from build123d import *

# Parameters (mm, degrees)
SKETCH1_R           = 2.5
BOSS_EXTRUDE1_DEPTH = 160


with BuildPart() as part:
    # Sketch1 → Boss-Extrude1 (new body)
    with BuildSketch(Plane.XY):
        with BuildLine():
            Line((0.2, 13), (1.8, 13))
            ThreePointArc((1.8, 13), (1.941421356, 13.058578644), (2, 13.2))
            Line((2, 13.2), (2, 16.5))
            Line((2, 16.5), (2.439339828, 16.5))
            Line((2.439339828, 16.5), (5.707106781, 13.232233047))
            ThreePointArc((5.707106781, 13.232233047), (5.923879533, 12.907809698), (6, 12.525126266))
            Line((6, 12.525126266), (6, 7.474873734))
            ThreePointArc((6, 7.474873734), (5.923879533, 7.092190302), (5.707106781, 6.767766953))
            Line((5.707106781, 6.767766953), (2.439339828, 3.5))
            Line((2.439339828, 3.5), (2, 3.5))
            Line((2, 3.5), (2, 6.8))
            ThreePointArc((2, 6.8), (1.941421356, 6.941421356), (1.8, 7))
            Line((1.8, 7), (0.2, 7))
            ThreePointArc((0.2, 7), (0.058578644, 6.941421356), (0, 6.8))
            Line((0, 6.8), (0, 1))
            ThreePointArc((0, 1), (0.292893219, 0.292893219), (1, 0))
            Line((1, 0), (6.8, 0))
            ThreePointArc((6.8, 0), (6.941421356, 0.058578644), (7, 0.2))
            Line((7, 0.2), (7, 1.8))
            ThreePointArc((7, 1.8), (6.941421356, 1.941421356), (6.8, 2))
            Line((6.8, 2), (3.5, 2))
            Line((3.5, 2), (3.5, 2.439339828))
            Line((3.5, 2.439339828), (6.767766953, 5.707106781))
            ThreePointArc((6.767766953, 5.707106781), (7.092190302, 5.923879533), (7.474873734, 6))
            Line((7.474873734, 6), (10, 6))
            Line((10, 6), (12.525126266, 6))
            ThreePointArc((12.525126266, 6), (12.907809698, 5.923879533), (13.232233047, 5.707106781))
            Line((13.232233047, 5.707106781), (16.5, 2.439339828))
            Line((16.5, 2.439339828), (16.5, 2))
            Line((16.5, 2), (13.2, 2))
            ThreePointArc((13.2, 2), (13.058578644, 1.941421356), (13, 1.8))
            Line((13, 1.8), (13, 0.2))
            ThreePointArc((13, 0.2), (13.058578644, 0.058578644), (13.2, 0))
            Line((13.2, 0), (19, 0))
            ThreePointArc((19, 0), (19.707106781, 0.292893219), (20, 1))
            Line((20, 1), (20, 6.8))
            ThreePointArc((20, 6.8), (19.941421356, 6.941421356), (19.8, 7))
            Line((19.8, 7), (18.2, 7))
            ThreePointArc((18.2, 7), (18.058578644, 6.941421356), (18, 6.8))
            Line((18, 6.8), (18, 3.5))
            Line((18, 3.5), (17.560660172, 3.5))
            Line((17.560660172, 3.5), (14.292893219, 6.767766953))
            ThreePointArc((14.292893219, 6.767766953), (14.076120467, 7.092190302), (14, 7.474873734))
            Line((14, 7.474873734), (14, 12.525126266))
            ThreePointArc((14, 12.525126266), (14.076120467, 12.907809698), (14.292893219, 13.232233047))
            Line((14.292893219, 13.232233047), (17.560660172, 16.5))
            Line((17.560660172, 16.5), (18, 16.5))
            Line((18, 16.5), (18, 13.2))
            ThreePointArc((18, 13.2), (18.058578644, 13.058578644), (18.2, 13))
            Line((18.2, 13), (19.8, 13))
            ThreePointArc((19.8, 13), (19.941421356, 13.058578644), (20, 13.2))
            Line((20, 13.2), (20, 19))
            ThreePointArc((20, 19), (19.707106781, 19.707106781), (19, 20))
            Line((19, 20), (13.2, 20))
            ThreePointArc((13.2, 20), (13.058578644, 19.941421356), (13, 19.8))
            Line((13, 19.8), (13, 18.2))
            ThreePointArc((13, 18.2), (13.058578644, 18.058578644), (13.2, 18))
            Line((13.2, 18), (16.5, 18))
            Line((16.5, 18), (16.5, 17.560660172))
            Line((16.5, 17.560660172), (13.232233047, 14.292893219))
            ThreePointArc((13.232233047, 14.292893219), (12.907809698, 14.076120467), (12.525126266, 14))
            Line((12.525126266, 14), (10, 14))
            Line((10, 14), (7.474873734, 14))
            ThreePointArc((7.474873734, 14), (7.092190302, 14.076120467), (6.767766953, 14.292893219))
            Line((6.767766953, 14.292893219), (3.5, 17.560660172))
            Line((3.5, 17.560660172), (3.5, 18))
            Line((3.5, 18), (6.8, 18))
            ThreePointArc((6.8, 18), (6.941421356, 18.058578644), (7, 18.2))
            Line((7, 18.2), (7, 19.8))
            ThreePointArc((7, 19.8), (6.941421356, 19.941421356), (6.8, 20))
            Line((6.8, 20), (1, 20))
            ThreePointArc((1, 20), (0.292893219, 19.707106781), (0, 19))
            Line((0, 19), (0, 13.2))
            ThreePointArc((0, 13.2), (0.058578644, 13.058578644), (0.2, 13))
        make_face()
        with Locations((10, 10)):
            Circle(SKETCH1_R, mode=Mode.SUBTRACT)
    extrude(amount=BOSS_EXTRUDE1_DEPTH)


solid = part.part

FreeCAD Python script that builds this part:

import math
import FreeCAD as App
import Part
import Sketcher

doc = App.newDocument("Part")
params = doc.addObject("Spreadsheet::Sheet", "Params")
for row, (alias, value) in enumerate([
    ("sketch1_diameter", "5 mm"),
    ("sketch1_radius", "1 mm"),
    ("sketch1_radius2", "0.2 mm"),
    ("sketch1_width", "1.6 mm"),
    ("sketch1_width2", "5.8 mm"),
    ("pad1_length", "160 mm"),
], start=1):
    params.set(f"A{row}", alias)
    params.set(f"B{row}", "=" + value)
    params.setAlias(f"B{row}", alias)

body = doc.addObject("PartDesign::Body", "Body")

# Sketch on XY plane
sketch1 = body.newObject("Sketcher::SketchObject", "Sketch")
sketch1.AttachmentSupport = (doc.getObject("XY_Plane"), [""])
sketch1.MapMode = "FlatFace"
sketch1.addGeometry(Part.LineSegment(App.Vector(0.2, 13, 0), App.Vector(1.8, 13, 0)), False)
sketch1.addGeometry(Part.ArcOfCircle(Part.Circle(App.Vector(1.8, 13.2, 0), App.Vector(0, 0, 1), 0.2), math.radians(-90), math.radians(0)), False)
sketch1.addGeometry(Part.LineSegment(App.Vector(2, 13.2, 0), App.Vector(2, 16.5, 0)), False)
sketch1.addGeometry(Part.LineSegment(App.Vector(2, 16.5, 0), App.Vector(2.44, 16.5, 0)), False)
sketch1.addGeometry(Part.LineSegment(App.Vector(2.44, 16.5, 0), App.Vector(5.71, 13.23, 0)), False)
sketch1.addGeometry(Part.ArcOfCircle(Part.Circle(App.Vector(5, 12.53, 0), App.Vector(0, 0, 1), 1), math.radians(0), math.radians(45)), False)
sketch1.addGeometry(Part.LineSegment(App.Vector(6, 12.53, 0), App.Vector(6, 7.47, 0)), False)
sketch1.addGeometry(Part.ArcOfCircle(Part.Circle(App.Vector(5, 7.47, 0), App.Vector(0, 0, 1), 1), math.radians(-45), math.radians(0)), False)
sketch1.addGeometry(Part.LineSegment(App.Vector(5.71, 6.77, 0), App.Vector(2.44, 3.5, 0)), False)
sketch1.addGeometry(Part.LineSegment(App.Vector(2.44, 3.5, 0), App.Vector(2, 3.5, 0)), False)
sketch1.addGeometry(Part.LineSegment(App.Vector(2, 3.5, 0), App.Vector(2, 6.8, 0)), False)
sketch1.addGeometry(Part.ArcOfCircle(Part.Circle(App.Vector(1.8, 6.8, 0), App.Vector(0, 0, 1), 0.2), math.radians(0), math.radians(90)), False)
sketch1.addGeometry(Part.LineSegment(App.Vector(1.8, 7, 0), App.Vector(0.2, 7, 0)), False)
sketch1.addGeometry(Part.ArcOfCircle(Part.Circle(App.Vector(0.2, 6.8, 0), App.Vector(0, 0, 1), 0.2), math.radians(90), math.radians(180)), False)
sketch1.addGeometry(Part.LineSegment(App.Vector(0, 6.8, 0), App.Vector(0, 1, 0)), False)
sketch1.addGeometry(Part.ArcOfCircle(Part.Circle(App.Vector(1, 1, 0), App.Vector(0, 0, 1), 1), math.radians(-180), math.radians(-90)), False)
sketch1.addGeometry(Part.LineSegment(App.Vector(1, 0, 0), App.Vector(6.8, 0, 0)), False)
sketch1.addGeometry(Part.ArcOfCircle(Part.Circle(App.Vector(6.8, 0.2, 0), App.Vector(0, 0, 1), 0.2), math.radians(-90), math.radians(0)), False)
sketch1.addGeometry(Part.LineSegment(App.Vector(7, 0.2, 0), App.Vector(7, 1.8, 0)), False)
sketch1.addGeometry(Part.ArcOfCircle(Part.Circle(App.Vector(6.8, 1.8, 0), App.Vector(0, 0, 1), 0.2), math.radians(0), math.radians(90)), False)
sketch1.addGeometry(Part.LineSegment(App.Vector(6.8, 2, 0), App.Vector(3.5, 2, 0)), False)
sketch1.addGeometry(Part.LineSegment(App.Vector(3.5, 2, 0), App.Vector(3.5, 2.44, 0)), False)
sketch1.addGeometry(Part.LineSegment(App.Vector(3.5, 2.44, 0), App.Vector(6.77, 5.71, 0)), False)
sketch1.addGeometry(Part.ArcOfCircle(Part.Circle(App.Vector(7.47, 5, 0), App.Vector(0, 0, 1), 1), math.radians(90), math.radians(135)), False)
sketch1.addGeometry(Part.LineSegment(App.Vector(7.47, 6, 0), App.Vector(12.53, 6, 0)), False)
sketch1.addGeometry(Part.ArcOfCircle(Part.Circle(App.Vector(12.53, 5, 0), App.Vector(0, 0, 1), 1), math.radians(45), math.radians(90)), False)
sketch1.addGeometry(Part.LineSegment(App.Vector(13.23, 5.71, 0), App.Vector(16.5, 2.44, 0)), False)
sketch1.addGeometry(Part.LineSegment(App.Vector(16.5, 2.44, 0), App.Vector(16.5, 2, 0)), False)
sketch1.addGeometry(Part.LineSegment(App.Vector(16.5, 2, 0), App.Vector(13.2, 2, 0)), False)
sketch1.addGeometry(Part.ArcOfCircle(Part.Circle(App.Vector(13.2, 1.8, 0), App.Vector(0, 0, 1), 0.2), math.radians(90), math.radians(180)), False)
sketch1.addGeometry(Part.LineSegment(App.Vector(13, 1.8, 0), App.Vector(13, 0.2, 0)), False)
sketch1.addGeometry(Part.ArcOfCircle(Part.Circle(App.Vector(13.2, 0.2, 0), App.Vector(0, 0, 1), 0.2), math.radians(-180), math.radians(-90)), False)
sketch1.addGeometry(Part.LineSegment(App.Vector(13.2, 0, 0), App.Vector(19, 0, 0)), False)
sketch1.addGeometry(Part.ArcOfCircle(Part.Circle(App.Vector(19, 1, 0), App.Vector(0, 0, 1), 1), math.radians(-90), math.radians(0)), False)
sketch1.addGeometry(Part.LineSegment(App.Vector(20, 1, 0), App.Vector(20, 6.8, 0)), False)
sketch1.addGeometry(Part.ArcOfCircle(Part.Circle(App.Vector(19.8, 6.8, 0), App.Vector(0, 0, 1), 0.2), math.radians(0), math.radians(90)), False)
sketch1.addGeometry(Part.LineSegment(App.Vector(19.8, 7, 0), App.Vector(18.2, 7, 0)), False)
sketch1.addGeometry(Part.ArcOfCircle(Part.Circle(App.Vector(18.2, 6.8, 0), App.Vector(0, 0, 1), 0.2), math.radians(90), math.radians(180)), False)
sketch1.addGeometry(Part.LineSegment(App.Vector(18, 6.8, 0), App.Vector(18, 3.5, 0)), False)
sketch1.addGeometry(Part.LineSegment(App.Vector(18, 3.5, 0), App.Vector(17.56, 3.5, 0)), False)
sketch1.addGeometry(Part.LineSegment(App.Vector(17.56, 3.5, 0), App.Vector(14.29, 6.77, 0)), False)
sketch1.addGeometry(Part.ArcOfCircle(Part.Circle(App.Vector(15, 7.47, 0), App.Vector(0, 0, 1), 1), math.radians(180), math.radians(225)), False)
sketch1.addGeometry(Part.LineSegment(App.Vector(14, 7.47, 0), App.Vector(14, 12.53, 0)), False)
sketch1.addGeometry(Part.ArcOfCircle(Part.Circle(App.Vector(15, 12.53, 0), App.Vector(0, 0, 1), 1), math.radians(135), math.radians(180)), False)
sketch1.addGeometry(Part.LineSegment(App.Vector(14.29, 13.23, 0), App.Vector(17.56, 16.5, 0)), False)
sketch1.addGeometry(Part.LineSegment(App.Vector(17.56, 16.5, 0), App.Vector(18, 16.5, 0)), False)
sketch1.addGeometry(Part.LineSegment(App.Vector(18, 16.5, 0), App.Vector(18, 13.2, 0)), False)
sketch1.addGeometry(Part.ArcOfCircle(Part.Circle(App.Vector(18.2, 13.2, 0), App.Vector(0, 0, 1), 0.2), math.radians(-180), math.radians(-90)), False)
sketch1.addGeometry(Part.LineSegment(App.Vector(18.2, 13, 0), App.Vector(19.8, 13, 0)), False)
sketch1.addGeometry(Part.ArcOfCircle(Part.Circle(App.Vector(19.8, 13.2, 0), App.Vector(0, 0, 1), 0.2), math.radians(-90), math.radians(0)), False)
sketch1.addGeometry(Part.LineSegment(App.Vector(20, 13.2, 0), App.Vector(20, 19, 0)), False)
sketch1.addGeometry(Part.ArcOfCircle(Part.Circle(App.Vector(19, 19, 0), App.Vector(0, 0, 1), 1), math.radians(0), math.radians(90)), False)
sketch1.addGeometry(Part.LineSegment(App.Vector(19, 20, 0), App.Vector(13.2, 20, 0)), False)
sketch1.addGeometry(Part.ArcOfCircle(Part.Circle(App.Vector(13.2, 19.8, 0), App.Vector(0, 0, 1), 0.2), math.radians(90), math.radians(180)), False)
sketch1.addGeometry(Part.LineSegment(App.Vector(13, 19.8, 0), App.Vector(13, 18.2, 0)), False)
sketch1.addGeometry(Part.ArcOfCircle(Part.Circle(App.Vector(13.2, 18.2, 0), App.Vector(0, 0, 1), 0.2), math.radians(-180), math.radians(-90)), False)
sketch1.addGeometry(Part.LineSegment(App.Vector(13.2, 18, 0), App.Vector(16.5, 18, 0)), False)
sketch1.addGeometry(Part.LineSegment(App.Vector(16.5, 18, 0), App.Vector(16.5, 17.56, 0)), False)
sketch1.addGeometry(Part.LineSegment(App.Vector(16.5, 17.56, 0), App.Vector(13.23, 14.29, 0)), False)
sketch1.addGeometry(Part.ArcOfCircle(Part.Circle(App.Vector(12.53, 15, 0), App.Vector(0, 0, 1), 1), math.radians(-90), math.radians(-45)), False)
sketch1.addGeometry(Part.LineSegment(App.Vector(12.53, 14, 0), App.Vector(7.47, 14, 0)), False)
sketch1.addGeometry(Part.ArcOfCircle(Part.Circle(App.Vector(7.47, 15, 0), App.Vector(0, 0, 1), 1), math.radians(-135), math.radians(-90)), False)
sketch1.addGeometry(Part.LineSegment(App.Vector(6.77, 14.29, 0), App.Vector(3.5, 17.56, 0)), False)
sketch1.addGeometry(Part.LineSegment(App.Vector(3.5, 17.56, 0), App.Vector(3.5, 18, 0)), False)
sketch1.addGeometry(Part.LineSegment(App.Vector(3.5, 18, 0), App.Vector(6.8, 18, 0)), False)
sketch1.addGeometry(Part.ArcOfCircle(Part.Circle(App.Vector(6.8, 18.2, 0), App.Vector(0, 0, 1), 0.2), math.radians(-90), math.radians(0)), False)
sketch1.addGeometry(Part.LineSegment(App.Vector(7, 18.2, 0), App.Vector(7, 19.8, 0)), False)
sketch1.addGeometry(Part.ArcOfCircle(Part.Circle(App.Vector(6.8, 19.8, 0), App.Vector(0, 0, 1), 0.2), math.radians(0), math.radians(90)), False)
sketch1.addGeometry(Part.LineSegment(App.Vector(6.8, 20, 0), App.Vector(1, 20, 0)), False)
sketch1.addGeometry(Part.ArcOfCircle(Part.Circle(App.Vector(1, 19, 0), App.Vector(0, 0, 1), 1), math.radians(90), math.radians(180)), False)
sketch1.addGeometry(Part.LineSegment(App.Vector(0, 19, 0), App.Vector(0, 13.2, 0)), False)
sketch1.addGeometry(Part.ArcOfCircle(Part.Circle(App.Vector(0.2, 13.2, 0), App.Vector(0, 0, 1), 0.2), math.radians(-180), math.radians(-90)), False)
sketch1.addGeometry(Part.Circle(App.Vector(10, 10, 0), App.Vector(0, 0, 1), 2.5), False)
sketch1.addConstraint(Sketcher.Constraint("Tangent", 0, 2, 1, 1))
sketch1.addConstraint(Sketcher.Constraint("Tangent", 1, 2, 2, 1))
sketch1.addConstraint(Sketcher.Constraint("Coincident", 2, 2, 3, 1))
sketch1.addConstraint(Sketcher.Constraint("Coincident", 3, 2, 4, 1))
sketch1.addConstraint(Sketcher.Constraint("Tangent", 4, 2, 5, 2))
sketch1.addConstraint(Sketcher.Constraint("Tangent", 5, 1, 6, 1))
sketch1.addConstraint(Sketcher.Constraint("Tangent", 6, 2, 7, 2))
sketch1.addConstraint(Sketcher.Constraint("Tangent", 7, 1, 8, 1))
sketch1.addConstraint(Sketcher.Constraint("Coincident", 8, 2, 9, 1))
sketch1.addConstraint(Sketcher.Constraint("Coincident", 9, 2, 10, 1))
sketch1.addConstraint(Sketcher.Constraint("Tangent", 10, 2, 11, 1))
sketch1.addConstraint(Sketcher.Constraint("Tangent", 11, 2, 12, 1))
sketch1.addConstraint(Sketcher.Constraint("Tangent", 12, 2, 13, 1))
sketch1.addConstraint(Sketcher.Constraint("Tangent", 13, 2, 14, 1))
sketch1.addConstraint(Sketcher.Constraint("Tangent", 14, 2, 15, 1))
sketch1.addConstraint(Sketcher.Constraint("Tangent", 15, 2, 16, 1))
sketch1.addConstraint(Sketcher.Constraint("Tangent", 16, 2, 17, 1))
sketch1.addConstraint(Sketcher.Constraint("Tangent", 17, 2, 18, 1))
sketch1.addConstraint(Sketcher.Constraint("Tangent", 18, 2, 19, 1))
sketch1.addConstraint(Sketcher.Constraint("Tangent", 19, 2, 20, 1))
sketch1.addConstraint(Sketcher.Constraint("Coincident", 20, 2, 21, 1))
sketch1.addConstraint(Sketcher.Constraint("Coincident", 21, 2, 22, 1))
sketch1.addConstraint(Sketcher.Constraint("Tangent", 22, 2, 23, 2))
sketch1.addConstraint(Sketcher.Constraint("Tangent", 23, 1, 24, 1))
sketch1.addConstraint(Sketcher.Constraint("Tangent", 24, 2, 25, 2))
sketch1.addConstraint(Sketcher.Constraint("Tangent", 25, 1, 26, 1))
sketch1.addConstraint(Sketcher.Constraint("Coincident", 26, 2, 27, 1))
sketch1.addConstraint(Sketcher.Constraint("Coincident", 27, 2, 28, 1))
sketch1.addConstraint(Sketcher.Constraint("Tangent", 28, 2, 29, 1))
sketch1.addConstraint(Sketcher.Constraint("Tangent", 29, 2, 30, 1))
sketch1.addConstraint(Sketcher.Constraint("Tangent", 30, 2, 31, 1))
sketch1.addConstraint(Sketcher.Constraint("Tangent", 31, 2, 32, 1))
sketch1.addConstraint(Sketcher.Constraint("Tangent", 32, 2, 33, 1))
sketch1.addConstraint(Sketcher.Constraint("Tangent", 33, 2, 34, 1))
sketch1.addConstraint(Sketcher.Constraint("Tangent", 34, 2, 35, 1))
sketch1.addConstraint(Sketcher.Constraint("Tangent", 35, 2, 36, 1))
sketch1.addConstraint(Sketcher.Constraint("Tangent", 36, 2, 37, 1))
sketch1.addConstraint(Sketcher.Constraint("Tangent", 37, 2, 38, 1))
sketch1.addConstraint(Sketcher.Constraint("Coincident", 38, 2, 39, 1))
sketch1.addConstraint(Sketcher.Constraint("Coincident", 39, 2, 40, 1))
sketch1.addConstraint(Sketcher.Constraint("Tangent", 40, 2, 41, 2))
sketch1.addConstraint(Sketcher.Constraint("Tangent", 41, 1, 42, 1))
sketch1.addConstraint(Sketcher.Constraint("Tangent", 42, 2, 43, 2))
sketch1.addConstraint(Sketcher.Constraint("Tangent", 43, 1, 44, 1))
sketch1.addConstraint(Sketcher.Constraint("Coincident", 44, 2, 45, 1))
sketch1.addConstraint(Sketcher.Constraint("Coincident", 45, 2, 46, 1))
sketch1.addConstraint(Sketcher.Constraint("Tangent", 46, 2, 47, 1))
sketch1.addConstraint(Sketcher.Constraint("Tangent", 47, 2, 48, 1))
sketch1.addConstraint(Sketcher.Constraint("Tangent", 48, 2, 49, 1))
sketch1.addConstraint(Sketcher.Constraint("Tangent", 49, 2, 50, 1))
sketch1.addConstraint(Sketcher.Constraint("Tangent", 50, 2, 51, 1))
sketch1.addConstraint(Sketcher.Constraint("Tangent", 51, 2, 52, 1))
sketch1.addConstraint(Sketcher.Constraint("Tangent", 52, 2, 53, 1))
sketch1.addConstraint(Sketcher.Constraint("Tangent", 53, 2, 54, 1))
sketch1.addConstraint(Sketcher.Constraint("Tangent", 54, 2, 55, 1))
sketch1.addConstraint(Sketcher.Constraint("Tangent", 55, 2, 56, 1))
sketch1.addConstraint(Sketcher.Constraint("Coincident", 56, 2, 57, 1))
sketch1.addConstraint(Sketcher.Constraint("Coincident", 57, 2, 58, 1))
sketch1.addConstraint(Sketcher.Constraint("Tangent", 58, 2, 59, 2))
sketch1.addConstraint(Sketcher.Constraint("Tangent", 59, 1, 60, 1))
sketch1.addConstraint(Sketcher.Constraint("Tangent", 60, 2, 61, 2))
sketch1.addConstraint(Sketcher.Constraint("Tangent", 61, 1, 62, 1))
sketch1.addConstraint(Sketcher.Constraint("Coincident", 62, 2, 63, 1))
sketch1.addConstraint(Sketcher.Constraint("Coincident", 63, 2, 64, 1))
sketch1.addConstraint(Sketcher.Constraint("Tangent", 64, 2, 65, 1))
sketch1.addConstraint(Sketcher.Constraint("Tangent", 65, 2, 66, 1))
sketch1.addConstraint(Sketcher.Constraint("Tangent", 66, 2, 67, 1))
sketch1.addConstraint(Sketcher.Constraint("Tangent", 67, 2, 68, 1))
sketch1.addConstraint(Sketcher.Constraint("Tangent", 68, 2, 69, 1))
sketch1.addConstraint(Sketcher.Constraint("Tangent", 69, 2, 70, 1))
sketch1.addConstraint(Sketcher.Constraint("Tangent", 70, 2, 71, 1))
sketch1.addConstraint(Sketcher.Constraint("Tangent", 71, 2, 0, 1))
sketch1.addConstraint(Sketcher.Constraint("Horizontal", 0))
sketch1.addConstraint(Sketcher.Constraint("Vertical", 2))
sketch1.addConstraint(Sketcher.Constraint("Horizontal", 3))
sketch1.addConstraint(Sketcher.Constraint("Vertical", 6))
sketch1.addConstraint(Sketcher.Constraint("Horizontal", 9))
sketch1.addConstraint(Sketcher.Constraint("Vertical", 10))
sketch1.addConstraint(Sketcher.Constraint("Horizontal", 12))
sketch1.addConstraint(Sketcher.Constraint("Vertical", 14))
sketch1.addConstraint(Sketcher.Constraint("Horizontal", 16))
sketch1.addConstraint(Sketcher.Constraint("Vertical", 18))
sketch1.addConstraint(Sketcher.Constraint("Horizontal", 20))
sketch1.addConstraint(Sketcher.Constraint("Vertical", 21))
sketch1.addConstraint(Sketcher.Constraint("Horizontal", 24))
sketch1.addConstraint(Sketcher.Constraint("Vertical", 27))
sketch1.addConstraint(Sketcher.Constraint("Horizontal", 28))
sketch1.addConstraint(Sketcher.Constraint("Vertical", 30))
sketch1.addConstraint(Sketcher.Constraint("Horizontal", 32))
sketch1.addConstraint(Sketcher.Constraint("Vertical", 34))
sketch1.addConstraint(Sketcher.Constraint("Horizontal", 36))
sketch1.addConstraint(Sketcher.Constraint("Vertical", 38))
sketch1.addConstraint(Sketcher.Constraint("Horizontal", 39))
sketch1.addConstraint(Sketcher.Constraint("Vertical", 42))
sketch1.addConstraint(Sketcher.Constraint("Horizontal", 45))
sketch1.addConstraint(Sketcher.Constraint("Vertical", 46))
sketch1.addConstraint(Sketcher.Constraint("Horizontal", 48))
sketch1.addConstraint(Sketcher.Constraint("Vertical", 50))
sketch1.addConstraint(Sketcher.Constraint("Horizontal", 52))
sketch1.addConstraint(Sketcher.Constraint("Vertical", 54))
sketch1.addConstraint(Sketcher.Constraint("Horizontal", 56))
sketch1.addConstraint(Sketcher.Constraint("Vertical", 57))
sketch1.addConstraint(Sketcher.Constraint("Horizontal", 60))
sketch1.addConstraint(Sketcher.Constraint("Vertical", 63))
sketch1.addConstraint(Sketcher.Constraint("Horizontal", 64))
sketch1.addConstraint(Sketcher.Constraint("Vertical", 66))
sketch1.addConstraint(Sketcher.Constraint("Horizontal", 68))
sketch1.addConstraint(Sketcher.Constraint("Vertical", 70))
sketch1.addConstraint(Sketcher.Constraint("Equal", 5, 7))
sketch1.addConstraint(Sketcher.Constraint("Equal", 1, 11))
sketch1.addConstraint(Sketcher.Constraint("Equal", 11, 13))
sketch1.addConstraint(Sketcher.Constraint("Equal", 7, 15))
sketch1.addConstraint(Sketcher.Constraint("Equal", 13, 17))
sketch1.addConstraint(Sketcher.Constraint("Equal", 17, 19))
sketch1.addConstraint(Sketcher.Constraint("Equal", 15, 23))
sketch1.addConstraint(Sketcher.Constraint("Equal", 23, 25))
sketch1.addConstraint(Sketcher.Constraint("Equal", 19, 29))
sketch1.addConstraint(Sketcher.Constraint("Equal", 29, 31))
sketch1.addConstraint(Sketcher.Constraint("Equal", 25, 33))
sketch1.addConstraint(Sketcher.Constraint("Equal", 31, 35))
sketch1.addConstraint(Sketcher.Constraint("Equal", 35, 37))
sketch1.addConstraint(Sketcher.Constraint("Equal", 33, 41))
sketch1.addConstraint(Sketcher.Constraint("Equal", 41, 43))
sketch1.addConstraint(Sketcher.Constraint("Equal", 37, 47))
sketch1.addConstraint(Sketcher.Constraint("Equal", 47, 49))
sketch1.addConstraint(Sketcher.Constraint("Equal", 43, 51))
sketch1.addConstraint(Sketcher.Constraint("Equal", 49, 53))
sketch1.addConstraint(Sketcher.Constraint("Equal", 53, 55))
sketch1.addConstraint(Sketcher.Constraint("Equal", 51, 59))
sketch1.addConstraint(Sketcher.Constraint("Equal", 59, 61))
sketch1.addConstraint(Sketcher.Constraint("Equal", 55, 65))
sketch1.addConstraint(Sketcher.Constraint("Equal", 65, 67))
sketch1.addConstraint(Sketcher.Constraint("Equal", 61, 69))
sketch1.addConstraint(Sketcher.Constraint("Equal", 67, 71))
sketch1.addConstraint(Sketcher.Constraint("PointOnObject", 13, 2, -2))
sketch1.addConstraint(Sketcher.Constraint("PointOnObject", 15, 2, -1))
sketch1.addConstraint(Sketcher.Constraint("PointOnObject", 31, 2, -1))
sketch1.addConstraint(Sketcher.Constraint("PointOnObject", 69, 2, -2))
sketch1.addConstraint(Sketcher.Constraint("Perpendicular", 4, 8))
sketch1.addConstraint(Sketcher.Constraint("Parallel", 8, 22))
sketch1.addConstraint(Sketcher.Constraint("Perpendicular", 22, 26))
sketch1.addConstraint(Sketcher.Constraint("Parallel", 26, 40))
sketch1.addConstraint(Sketcher.Constraint("Perpendicular", 40, 44))
sketch1.addConstraint(Sketcher.Constraint("Parallel", 44, 58))
sketch1.addConstraint(Sketcher.Constraint("Perpendicular", 58, 62))
sketch1.addConstraint(Sketcher.Constraint("Horizontal", 19, 3, 29, 3))
sketch1.addConstraint(Sketcher.Constraint("Horizontal", 13, 3, 35, 3))
sketch1.addConstraint(Sketcher.Constraint("Horizontal", 7, 3, 41, 3))
sketch1.addConstraint(Sketcher.Constraint("Horizontal", 5, 3, 43, 3))
sketch1.addConstraint(Sketcher.Constraint("Horizontal", 1, 3, 47, 3))
sketch1.addConstraint(Sketcher.Constraint("Horizontal", 55, 3, 65, 3))
sketch1.addConstraint(Sketcher.Constraint("Horizontal", 53, 3, 67, 3))
sketch1.addConstraint(Sketcher.Constraint("Horizontal", 22, 2, 25, 1))
sketch1.addConstraint(Sketcher.Constraint("Horizontal", 21, 2, 26, 2))
sketch1.addConstraint(Sketcher.Constraint("Horizontal", 9, 2, 38, 2))
sketch1.addConstraint(Sketcher.Constraint("Horizontal", 3, 2, 44, 2))
sketch1.addConstraint(Sketcher.Constraint("Horizontal", 57, 2, 62, 2))
sketch1.addConstraint(Sketcher.Constraint("Vertical", 1, 3, 11, 3))
sketch1.addConstraint(Sketcher.Constraint("Vertical", 37, 3, 47, 3))
sketch1.addConstraint(Sketcher.Constraint("Vertical", 35, 3, 49, 3))
sketch1.addConstraint(Sketcher.Constraint("Vertical", 31, 3, 53, 3))
sketch1.addConstraint(Sketcher.Constraint("Vertical", 25, 3, 59, 3))
sketch1.addConstraint(Sketcher.Constraint("Vertical", 23, 3, 61, 3))
sketch1.addConstraint(Sketcher.Constraint("Vertical", 19, 3, 65, 3))
sketch1.addConstraint(Sketcher.Constraint("Vertical", 3, 2, 8, 2))
sketch1.addConstraint(Sketcher.Constraint("Vertical", 27, 2, 56, 2))
sketch1.addConstraint(Sketcher.Constraint("Equal", 20, 28))
sketch1.addConstraint(Sketcher.Constraint("Equal", 16, 32))
sketch1.addConstraint(Sketcher.Constraint("Equal", 12, 36))
sketch1.addConstraint(Sketcher.Constraint("Equal", 9, 39))
sketch1.addConstraint(Sketcher.Constraint("Equal", 64, 2))
sketch1.addConstraint(Sketcher.Constraint("Equal", 60, 6))
sketch1.addConstraint(Sketcher.Constraint("Equal", 2, 10))
sketch1.addConstraint(Sketcher.Constraint("Equal", 68, 14))
sketch1.addConstraint(Sketcher.Constraint("Equal", 48, 18))
sketch1.addConstraint(Sketcher.Constraint("Equal", 45, 21))
sketch1.addConstraint(Sketcher.Constraint("Equal", 34, 50))
sketch1.addConstraint(Sketcher.Constraint("Equal", 30, 54))
sketch1.addConstraint(Sketcher.Constraint("Equal", 27, 57))
sketch1.addConstraint(Sketcher.Constraint("Equal", 8, 22))
sketch1.addConstraint(Sketcher.Constraint("Diameter", 72, 5.0))
sketch1.addConstraint(Sketcher.Constraint("Radius", 5, 1.0))
sketch1.addConstraint(Sketcher.Constraint("Radius", 1, 0.2))
sketch1.addConstraint(Sketcher.Constraint("DistanceX", 0, 1, 0, 2, 1.6))
sketch1.addConstraint(Sketcher.Constraint("DistanceX", 16, 1, 16, 2, 5.8))
sketch1.addConstraint(Sketcher.Constraint("DistanceX", 20, 2, 20, 1, 3.3))
sketch1.addConstraint(Sketcher.Constraint("DistanceX", -1, 1, 5, 3, 5.0))
sketch1.addConstraint(Sketcher.Constraint("DistanceX", -1, 1, 33, 3, 19.0))
sketch1.addConstraint(Sketcher.Constraint("DistanceX", -1, 1, 72, 3, 10.0))
sketch1.addConstraint(Sketcher.Constraint("DistanceY", -1, 1, 72, 3, 10.0))
sketch1.addConstraint(Sketcher.Constraint("DistanceX", 3, 1, 3, 2, 0.43934))
sketch1.setExpression("Constraints[180]", "Params.sketch1_diameter")
sketch1.setExpression("Constraints[181]", "Params.sketch1_radius")
sketch1.setExpression("Constraints[182]", "Params.sketch1_radius2")
sketch1.setExpression("Constraints[183]", "Params.sketch1_width")
sketch1.setExpression("Constraints[184]", "Params.sketch1_width2")
pad1 = body.newObject("PartDesign::Pad", "Pad")
pad1.Profile = sketch1
pad1.setExpression("Length", "Params.pad1_length")

doc.recompute()
